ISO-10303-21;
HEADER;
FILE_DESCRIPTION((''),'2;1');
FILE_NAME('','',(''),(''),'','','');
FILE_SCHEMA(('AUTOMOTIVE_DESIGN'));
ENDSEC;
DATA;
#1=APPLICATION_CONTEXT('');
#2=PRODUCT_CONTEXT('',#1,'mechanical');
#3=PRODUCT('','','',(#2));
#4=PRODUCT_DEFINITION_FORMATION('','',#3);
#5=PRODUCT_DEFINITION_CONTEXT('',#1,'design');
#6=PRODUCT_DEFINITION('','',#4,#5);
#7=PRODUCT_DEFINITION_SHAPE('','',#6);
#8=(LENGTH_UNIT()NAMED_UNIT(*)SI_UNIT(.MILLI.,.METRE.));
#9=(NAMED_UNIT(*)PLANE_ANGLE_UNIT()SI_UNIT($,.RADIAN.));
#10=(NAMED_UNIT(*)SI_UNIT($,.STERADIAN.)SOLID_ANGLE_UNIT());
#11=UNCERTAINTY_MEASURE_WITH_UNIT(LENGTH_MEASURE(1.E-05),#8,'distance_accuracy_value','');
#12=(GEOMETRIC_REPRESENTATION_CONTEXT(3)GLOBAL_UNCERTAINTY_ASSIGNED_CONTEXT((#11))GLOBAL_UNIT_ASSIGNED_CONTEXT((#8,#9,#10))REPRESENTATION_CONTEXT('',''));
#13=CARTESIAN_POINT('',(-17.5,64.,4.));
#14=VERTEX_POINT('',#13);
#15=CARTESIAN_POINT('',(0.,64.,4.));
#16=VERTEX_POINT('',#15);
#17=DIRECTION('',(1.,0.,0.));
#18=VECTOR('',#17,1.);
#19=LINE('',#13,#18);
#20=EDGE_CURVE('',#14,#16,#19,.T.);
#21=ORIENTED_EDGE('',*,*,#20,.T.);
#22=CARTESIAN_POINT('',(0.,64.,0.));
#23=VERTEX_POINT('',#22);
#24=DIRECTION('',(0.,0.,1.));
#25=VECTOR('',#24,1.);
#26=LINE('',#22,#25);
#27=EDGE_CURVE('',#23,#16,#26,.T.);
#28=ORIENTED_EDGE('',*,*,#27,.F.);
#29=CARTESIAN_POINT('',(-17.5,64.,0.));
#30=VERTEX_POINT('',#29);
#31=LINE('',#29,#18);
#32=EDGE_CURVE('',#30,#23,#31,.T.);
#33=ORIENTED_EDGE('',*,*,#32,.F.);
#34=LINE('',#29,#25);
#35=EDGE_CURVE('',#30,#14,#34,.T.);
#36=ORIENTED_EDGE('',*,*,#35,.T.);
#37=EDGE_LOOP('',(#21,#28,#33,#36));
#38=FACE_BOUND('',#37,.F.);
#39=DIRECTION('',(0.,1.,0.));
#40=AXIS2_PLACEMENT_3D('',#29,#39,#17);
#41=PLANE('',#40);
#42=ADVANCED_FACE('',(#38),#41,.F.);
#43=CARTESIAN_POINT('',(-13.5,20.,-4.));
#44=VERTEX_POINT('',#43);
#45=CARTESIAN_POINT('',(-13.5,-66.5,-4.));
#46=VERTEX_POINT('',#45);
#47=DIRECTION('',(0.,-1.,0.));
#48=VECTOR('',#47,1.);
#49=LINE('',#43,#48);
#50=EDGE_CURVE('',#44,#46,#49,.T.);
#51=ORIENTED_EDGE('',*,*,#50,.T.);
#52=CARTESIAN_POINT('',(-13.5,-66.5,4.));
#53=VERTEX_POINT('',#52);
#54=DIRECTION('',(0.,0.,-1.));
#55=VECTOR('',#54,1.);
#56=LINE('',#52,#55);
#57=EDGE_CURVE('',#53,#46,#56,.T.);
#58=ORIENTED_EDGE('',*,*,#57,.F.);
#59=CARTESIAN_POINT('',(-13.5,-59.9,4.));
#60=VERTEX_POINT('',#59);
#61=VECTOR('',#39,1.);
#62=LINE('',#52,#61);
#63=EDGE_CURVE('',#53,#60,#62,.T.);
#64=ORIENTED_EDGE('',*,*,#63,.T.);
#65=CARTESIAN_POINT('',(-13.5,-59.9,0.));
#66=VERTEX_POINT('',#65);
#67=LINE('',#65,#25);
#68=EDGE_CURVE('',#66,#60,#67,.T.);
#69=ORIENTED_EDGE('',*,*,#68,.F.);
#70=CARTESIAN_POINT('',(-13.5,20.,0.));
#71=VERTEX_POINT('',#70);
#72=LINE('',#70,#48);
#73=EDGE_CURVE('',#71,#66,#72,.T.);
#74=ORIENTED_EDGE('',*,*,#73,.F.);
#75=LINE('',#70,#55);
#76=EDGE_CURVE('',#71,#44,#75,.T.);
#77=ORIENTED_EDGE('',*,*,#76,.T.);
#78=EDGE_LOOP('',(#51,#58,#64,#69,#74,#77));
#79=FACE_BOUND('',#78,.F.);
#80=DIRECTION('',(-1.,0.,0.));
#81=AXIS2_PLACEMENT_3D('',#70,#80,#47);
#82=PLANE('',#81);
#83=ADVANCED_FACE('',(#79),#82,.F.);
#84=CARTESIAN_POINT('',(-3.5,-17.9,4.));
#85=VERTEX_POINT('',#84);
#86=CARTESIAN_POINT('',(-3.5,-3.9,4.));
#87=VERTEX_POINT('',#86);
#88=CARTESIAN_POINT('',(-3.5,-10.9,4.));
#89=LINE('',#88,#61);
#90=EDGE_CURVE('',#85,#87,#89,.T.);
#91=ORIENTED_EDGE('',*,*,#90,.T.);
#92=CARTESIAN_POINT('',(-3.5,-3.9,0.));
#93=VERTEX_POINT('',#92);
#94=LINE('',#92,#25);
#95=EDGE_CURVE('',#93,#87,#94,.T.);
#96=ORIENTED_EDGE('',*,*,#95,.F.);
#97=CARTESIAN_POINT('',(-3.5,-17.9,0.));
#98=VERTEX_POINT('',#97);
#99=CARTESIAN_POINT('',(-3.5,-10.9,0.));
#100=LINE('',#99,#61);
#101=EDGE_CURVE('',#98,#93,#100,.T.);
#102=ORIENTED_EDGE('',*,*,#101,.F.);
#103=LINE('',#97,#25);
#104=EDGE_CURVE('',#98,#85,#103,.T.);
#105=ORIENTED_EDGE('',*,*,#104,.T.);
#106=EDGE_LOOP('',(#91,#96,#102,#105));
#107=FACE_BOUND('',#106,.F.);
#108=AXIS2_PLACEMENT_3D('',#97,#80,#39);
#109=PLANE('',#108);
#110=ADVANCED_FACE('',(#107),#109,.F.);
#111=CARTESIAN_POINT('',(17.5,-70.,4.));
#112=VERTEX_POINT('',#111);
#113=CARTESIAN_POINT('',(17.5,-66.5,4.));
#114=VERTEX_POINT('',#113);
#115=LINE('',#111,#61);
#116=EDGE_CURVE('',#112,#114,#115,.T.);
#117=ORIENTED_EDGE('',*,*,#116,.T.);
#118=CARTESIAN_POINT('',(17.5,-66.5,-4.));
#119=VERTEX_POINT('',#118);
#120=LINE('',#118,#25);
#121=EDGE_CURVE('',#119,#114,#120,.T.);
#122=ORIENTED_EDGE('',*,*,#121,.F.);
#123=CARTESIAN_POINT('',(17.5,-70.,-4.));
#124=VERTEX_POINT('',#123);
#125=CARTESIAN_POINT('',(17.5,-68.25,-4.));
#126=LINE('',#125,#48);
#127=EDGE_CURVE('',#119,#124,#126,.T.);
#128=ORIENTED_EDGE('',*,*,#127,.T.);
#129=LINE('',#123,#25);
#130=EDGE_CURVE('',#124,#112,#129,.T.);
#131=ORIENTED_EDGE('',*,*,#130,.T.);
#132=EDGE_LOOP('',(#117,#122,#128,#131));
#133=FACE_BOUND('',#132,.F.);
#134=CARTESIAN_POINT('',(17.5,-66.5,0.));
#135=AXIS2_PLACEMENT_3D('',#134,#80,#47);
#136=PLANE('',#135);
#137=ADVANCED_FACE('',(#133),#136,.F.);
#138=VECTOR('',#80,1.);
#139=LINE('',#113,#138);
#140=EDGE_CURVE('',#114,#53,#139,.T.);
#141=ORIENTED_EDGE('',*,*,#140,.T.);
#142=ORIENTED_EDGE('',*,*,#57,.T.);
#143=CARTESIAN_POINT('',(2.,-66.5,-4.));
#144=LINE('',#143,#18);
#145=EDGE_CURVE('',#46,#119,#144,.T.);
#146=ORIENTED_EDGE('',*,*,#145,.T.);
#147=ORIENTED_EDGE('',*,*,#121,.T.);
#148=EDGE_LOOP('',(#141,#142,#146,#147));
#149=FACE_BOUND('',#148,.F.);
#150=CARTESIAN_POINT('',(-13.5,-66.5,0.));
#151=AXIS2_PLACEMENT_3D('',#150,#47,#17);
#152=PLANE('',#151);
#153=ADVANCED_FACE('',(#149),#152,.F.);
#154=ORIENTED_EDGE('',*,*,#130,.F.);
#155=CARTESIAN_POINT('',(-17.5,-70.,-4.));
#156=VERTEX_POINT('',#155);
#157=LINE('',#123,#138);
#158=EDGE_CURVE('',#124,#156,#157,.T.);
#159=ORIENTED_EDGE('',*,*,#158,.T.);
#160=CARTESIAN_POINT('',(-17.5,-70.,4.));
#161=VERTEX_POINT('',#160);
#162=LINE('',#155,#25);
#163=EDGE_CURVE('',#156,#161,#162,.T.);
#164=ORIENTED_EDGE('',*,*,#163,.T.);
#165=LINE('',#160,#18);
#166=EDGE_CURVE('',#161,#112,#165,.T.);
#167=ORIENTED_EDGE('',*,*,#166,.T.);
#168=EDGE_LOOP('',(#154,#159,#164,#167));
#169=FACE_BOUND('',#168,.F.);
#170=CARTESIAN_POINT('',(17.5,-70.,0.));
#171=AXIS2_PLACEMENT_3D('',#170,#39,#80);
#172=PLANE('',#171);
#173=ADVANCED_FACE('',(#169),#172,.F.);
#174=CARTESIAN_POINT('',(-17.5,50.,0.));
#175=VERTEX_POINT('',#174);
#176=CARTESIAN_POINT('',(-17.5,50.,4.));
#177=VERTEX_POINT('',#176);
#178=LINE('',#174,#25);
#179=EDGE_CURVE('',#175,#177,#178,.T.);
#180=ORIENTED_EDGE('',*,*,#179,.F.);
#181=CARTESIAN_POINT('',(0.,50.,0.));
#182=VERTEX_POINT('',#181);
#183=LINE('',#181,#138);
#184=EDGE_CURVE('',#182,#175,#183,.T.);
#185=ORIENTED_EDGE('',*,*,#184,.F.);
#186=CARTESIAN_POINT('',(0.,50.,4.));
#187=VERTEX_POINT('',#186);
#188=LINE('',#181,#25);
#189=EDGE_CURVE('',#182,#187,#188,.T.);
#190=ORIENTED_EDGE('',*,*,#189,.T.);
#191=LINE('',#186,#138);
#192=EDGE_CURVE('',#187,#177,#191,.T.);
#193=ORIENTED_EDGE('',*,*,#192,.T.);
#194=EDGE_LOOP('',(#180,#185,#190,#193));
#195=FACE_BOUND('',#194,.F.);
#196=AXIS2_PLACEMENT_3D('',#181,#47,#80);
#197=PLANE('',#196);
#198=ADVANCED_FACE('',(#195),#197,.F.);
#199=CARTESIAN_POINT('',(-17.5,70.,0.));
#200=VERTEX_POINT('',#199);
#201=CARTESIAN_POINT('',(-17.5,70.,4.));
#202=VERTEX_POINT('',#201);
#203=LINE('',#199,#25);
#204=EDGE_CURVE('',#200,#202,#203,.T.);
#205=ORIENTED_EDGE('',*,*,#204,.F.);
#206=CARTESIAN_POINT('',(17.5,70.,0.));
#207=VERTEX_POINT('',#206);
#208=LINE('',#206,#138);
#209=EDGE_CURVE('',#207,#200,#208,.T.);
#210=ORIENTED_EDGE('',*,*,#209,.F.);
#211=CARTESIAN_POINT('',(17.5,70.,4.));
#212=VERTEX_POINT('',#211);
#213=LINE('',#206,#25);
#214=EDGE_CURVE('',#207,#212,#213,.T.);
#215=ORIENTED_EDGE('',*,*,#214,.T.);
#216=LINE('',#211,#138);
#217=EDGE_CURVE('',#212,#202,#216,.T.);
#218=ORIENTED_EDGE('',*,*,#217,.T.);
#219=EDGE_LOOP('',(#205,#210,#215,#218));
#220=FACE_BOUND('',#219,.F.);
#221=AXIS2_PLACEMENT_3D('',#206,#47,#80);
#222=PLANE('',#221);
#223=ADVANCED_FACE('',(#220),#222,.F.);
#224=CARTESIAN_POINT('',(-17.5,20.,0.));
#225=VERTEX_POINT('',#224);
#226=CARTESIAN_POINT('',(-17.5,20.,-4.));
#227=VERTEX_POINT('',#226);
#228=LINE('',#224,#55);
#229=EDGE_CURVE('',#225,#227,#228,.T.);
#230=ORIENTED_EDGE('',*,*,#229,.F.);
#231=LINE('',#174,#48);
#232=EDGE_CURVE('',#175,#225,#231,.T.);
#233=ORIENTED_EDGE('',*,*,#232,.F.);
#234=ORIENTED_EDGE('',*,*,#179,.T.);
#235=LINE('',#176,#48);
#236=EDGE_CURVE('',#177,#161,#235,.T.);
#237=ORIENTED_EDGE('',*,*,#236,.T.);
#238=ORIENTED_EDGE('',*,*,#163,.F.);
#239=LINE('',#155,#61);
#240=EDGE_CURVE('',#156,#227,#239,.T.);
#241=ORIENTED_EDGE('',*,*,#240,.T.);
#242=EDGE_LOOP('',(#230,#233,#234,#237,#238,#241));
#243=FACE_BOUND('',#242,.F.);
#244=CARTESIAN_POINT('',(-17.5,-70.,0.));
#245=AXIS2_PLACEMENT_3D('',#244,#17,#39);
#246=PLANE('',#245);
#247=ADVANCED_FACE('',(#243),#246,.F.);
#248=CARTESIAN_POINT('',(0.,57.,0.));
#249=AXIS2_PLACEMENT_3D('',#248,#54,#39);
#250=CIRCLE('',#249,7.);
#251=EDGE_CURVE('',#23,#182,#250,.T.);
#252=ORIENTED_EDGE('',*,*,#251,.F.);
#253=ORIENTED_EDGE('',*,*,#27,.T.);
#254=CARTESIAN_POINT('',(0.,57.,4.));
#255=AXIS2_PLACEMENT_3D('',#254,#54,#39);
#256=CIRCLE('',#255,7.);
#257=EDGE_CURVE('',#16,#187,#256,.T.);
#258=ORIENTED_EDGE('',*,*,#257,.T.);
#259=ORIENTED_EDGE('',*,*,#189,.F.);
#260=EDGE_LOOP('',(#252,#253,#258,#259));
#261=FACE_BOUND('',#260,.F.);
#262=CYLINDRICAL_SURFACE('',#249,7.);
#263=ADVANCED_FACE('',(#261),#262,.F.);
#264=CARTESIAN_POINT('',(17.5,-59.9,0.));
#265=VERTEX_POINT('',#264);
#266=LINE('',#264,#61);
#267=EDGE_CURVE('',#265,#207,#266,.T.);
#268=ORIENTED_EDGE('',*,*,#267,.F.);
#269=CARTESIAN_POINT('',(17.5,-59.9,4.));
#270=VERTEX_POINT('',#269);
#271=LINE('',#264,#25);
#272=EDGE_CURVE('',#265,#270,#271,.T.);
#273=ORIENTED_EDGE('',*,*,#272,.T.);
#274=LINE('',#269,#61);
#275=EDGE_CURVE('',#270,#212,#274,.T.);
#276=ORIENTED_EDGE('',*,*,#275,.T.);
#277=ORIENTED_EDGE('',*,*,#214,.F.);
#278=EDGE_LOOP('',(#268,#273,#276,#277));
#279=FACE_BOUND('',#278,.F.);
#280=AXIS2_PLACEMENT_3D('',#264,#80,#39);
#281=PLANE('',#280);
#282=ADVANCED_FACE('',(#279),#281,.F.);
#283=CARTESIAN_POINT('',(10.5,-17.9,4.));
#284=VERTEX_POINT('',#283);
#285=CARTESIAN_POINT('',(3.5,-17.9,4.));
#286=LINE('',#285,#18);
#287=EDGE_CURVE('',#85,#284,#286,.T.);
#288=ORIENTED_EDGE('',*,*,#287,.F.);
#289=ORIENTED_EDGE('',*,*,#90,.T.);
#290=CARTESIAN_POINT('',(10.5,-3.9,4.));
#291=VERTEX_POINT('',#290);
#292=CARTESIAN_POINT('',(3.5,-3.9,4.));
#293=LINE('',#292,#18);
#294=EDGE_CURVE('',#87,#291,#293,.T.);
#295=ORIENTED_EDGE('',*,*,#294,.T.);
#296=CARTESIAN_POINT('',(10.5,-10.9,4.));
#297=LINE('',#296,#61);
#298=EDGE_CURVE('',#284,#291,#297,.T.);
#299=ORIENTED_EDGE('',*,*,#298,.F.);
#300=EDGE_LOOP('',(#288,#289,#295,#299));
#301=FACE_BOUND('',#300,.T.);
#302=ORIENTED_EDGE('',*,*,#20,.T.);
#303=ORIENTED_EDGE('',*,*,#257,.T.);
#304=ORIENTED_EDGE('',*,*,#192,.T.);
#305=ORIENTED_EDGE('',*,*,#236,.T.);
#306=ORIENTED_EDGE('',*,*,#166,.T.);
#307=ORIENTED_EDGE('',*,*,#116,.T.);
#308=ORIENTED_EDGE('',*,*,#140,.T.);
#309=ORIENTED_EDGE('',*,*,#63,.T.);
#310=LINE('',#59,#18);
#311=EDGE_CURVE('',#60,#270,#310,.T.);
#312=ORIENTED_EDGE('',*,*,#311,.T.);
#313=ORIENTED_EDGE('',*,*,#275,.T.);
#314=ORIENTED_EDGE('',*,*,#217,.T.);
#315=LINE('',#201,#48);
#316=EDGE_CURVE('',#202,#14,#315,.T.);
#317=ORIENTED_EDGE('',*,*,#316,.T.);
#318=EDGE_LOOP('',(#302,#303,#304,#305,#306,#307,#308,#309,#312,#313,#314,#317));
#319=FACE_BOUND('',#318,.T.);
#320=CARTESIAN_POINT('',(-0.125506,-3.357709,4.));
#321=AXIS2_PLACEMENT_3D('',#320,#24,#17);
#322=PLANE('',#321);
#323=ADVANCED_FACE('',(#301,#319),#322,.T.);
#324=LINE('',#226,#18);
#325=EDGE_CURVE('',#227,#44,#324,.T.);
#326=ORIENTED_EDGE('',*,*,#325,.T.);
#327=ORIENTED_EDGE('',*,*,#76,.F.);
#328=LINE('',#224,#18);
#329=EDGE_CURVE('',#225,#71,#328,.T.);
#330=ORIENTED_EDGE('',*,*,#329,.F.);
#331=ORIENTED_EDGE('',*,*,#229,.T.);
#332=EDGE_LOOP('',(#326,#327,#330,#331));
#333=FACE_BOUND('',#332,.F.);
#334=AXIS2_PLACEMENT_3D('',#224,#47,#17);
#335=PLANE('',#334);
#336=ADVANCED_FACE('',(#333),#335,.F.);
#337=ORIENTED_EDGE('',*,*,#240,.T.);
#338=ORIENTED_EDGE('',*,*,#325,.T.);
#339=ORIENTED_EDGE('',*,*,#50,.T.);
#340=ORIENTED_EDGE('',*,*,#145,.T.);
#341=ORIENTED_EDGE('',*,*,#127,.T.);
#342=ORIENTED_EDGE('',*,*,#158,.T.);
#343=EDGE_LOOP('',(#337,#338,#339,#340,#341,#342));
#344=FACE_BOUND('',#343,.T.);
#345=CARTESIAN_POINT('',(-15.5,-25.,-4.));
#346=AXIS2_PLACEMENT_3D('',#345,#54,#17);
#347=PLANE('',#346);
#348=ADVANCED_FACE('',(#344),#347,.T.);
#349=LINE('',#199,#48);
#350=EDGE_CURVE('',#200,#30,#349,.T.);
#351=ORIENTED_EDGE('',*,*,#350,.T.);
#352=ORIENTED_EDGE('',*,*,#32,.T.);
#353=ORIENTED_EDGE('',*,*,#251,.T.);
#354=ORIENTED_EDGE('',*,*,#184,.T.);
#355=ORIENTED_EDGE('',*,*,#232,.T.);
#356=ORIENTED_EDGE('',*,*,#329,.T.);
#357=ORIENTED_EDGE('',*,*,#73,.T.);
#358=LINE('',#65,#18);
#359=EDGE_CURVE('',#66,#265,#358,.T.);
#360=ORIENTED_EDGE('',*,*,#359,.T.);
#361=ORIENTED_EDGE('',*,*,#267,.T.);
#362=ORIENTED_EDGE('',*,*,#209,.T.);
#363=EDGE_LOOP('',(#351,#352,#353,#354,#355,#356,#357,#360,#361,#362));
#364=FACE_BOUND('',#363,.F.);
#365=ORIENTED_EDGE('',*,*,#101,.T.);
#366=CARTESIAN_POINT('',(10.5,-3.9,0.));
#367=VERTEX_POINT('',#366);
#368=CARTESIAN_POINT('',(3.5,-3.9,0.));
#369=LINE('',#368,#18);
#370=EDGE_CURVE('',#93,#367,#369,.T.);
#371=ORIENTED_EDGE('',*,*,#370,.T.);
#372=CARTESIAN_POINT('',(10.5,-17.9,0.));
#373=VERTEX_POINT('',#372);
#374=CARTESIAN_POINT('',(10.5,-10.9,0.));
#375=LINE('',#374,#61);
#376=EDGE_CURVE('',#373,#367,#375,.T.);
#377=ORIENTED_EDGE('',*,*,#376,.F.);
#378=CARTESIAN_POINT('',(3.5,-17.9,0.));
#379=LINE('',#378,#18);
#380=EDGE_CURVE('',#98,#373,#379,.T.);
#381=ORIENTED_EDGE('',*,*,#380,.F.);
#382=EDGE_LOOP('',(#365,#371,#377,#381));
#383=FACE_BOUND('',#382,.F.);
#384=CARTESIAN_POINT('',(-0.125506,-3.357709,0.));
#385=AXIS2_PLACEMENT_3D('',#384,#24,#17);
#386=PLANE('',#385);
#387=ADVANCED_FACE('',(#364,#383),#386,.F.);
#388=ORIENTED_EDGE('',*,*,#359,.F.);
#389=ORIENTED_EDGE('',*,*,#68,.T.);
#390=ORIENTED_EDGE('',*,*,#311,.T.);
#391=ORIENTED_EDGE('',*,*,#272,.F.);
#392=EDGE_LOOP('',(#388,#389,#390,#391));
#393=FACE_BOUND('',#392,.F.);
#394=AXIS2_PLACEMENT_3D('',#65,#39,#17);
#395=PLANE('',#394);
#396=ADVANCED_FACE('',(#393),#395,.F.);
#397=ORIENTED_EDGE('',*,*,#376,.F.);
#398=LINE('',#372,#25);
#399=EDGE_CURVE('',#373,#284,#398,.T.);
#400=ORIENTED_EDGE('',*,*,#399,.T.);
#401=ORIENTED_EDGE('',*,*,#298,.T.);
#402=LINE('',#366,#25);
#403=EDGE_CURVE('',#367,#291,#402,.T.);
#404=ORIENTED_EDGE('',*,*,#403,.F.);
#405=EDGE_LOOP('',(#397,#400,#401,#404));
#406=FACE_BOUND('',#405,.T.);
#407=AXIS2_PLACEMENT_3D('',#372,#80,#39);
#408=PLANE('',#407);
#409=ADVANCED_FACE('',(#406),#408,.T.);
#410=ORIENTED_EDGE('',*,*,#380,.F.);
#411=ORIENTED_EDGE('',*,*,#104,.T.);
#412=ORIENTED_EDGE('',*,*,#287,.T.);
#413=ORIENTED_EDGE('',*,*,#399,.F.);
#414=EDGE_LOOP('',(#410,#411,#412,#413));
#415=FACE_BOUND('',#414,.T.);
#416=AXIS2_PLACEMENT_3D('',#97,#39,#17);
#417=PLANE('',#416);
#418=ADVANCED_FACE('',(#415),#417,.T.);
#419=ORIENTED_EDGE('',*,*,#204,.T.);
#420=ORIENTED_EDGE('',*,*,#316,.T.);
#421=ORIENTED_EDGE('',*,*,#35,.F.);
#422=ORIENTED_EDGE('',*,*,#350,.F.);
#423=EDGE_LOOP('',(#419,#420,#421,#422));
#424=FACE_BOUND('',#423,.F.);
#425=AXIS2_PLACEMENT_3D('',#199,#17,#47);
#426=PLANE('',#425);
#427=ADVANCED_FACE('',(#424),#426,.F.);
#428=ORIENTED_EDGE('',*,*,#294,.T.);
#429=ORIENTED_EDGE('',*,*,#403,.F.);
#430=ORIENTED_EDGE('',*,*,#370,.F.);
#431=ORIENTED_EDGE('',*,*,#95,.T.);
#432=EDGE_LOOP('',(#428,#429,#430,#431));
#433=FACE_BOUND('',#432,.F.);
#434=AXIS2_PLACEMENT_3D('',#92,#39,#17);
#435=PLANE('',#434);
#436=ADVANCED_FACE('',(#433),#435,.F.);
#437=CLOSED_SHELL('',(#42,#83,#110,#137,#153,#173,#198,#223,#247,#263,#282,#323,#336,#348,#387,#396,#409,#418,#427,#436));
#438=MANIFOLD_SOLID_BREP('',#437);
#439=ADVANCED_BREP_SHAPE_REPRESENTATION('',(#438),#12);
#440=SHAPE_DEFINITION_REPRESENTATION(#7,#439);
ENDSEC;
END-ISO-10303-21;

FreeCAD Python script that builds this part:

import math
import FreeCAD as App
import Part
import Sketcher

V = App.Vector

doc = App.newDocument("Part")
body = doc.addObject("PartDesign::Body", "Body")

# Sketch on XY plane
sketch1 = body.newObject("Sketcher::SketchObject", "Sketch")
sketch1.AttachmentSupport = (doc.getObject("XY_Plane"), [""])
sketch1.MapMode = "FlatFace"
sketch1.addGeometry([
    Part.LineSegment(V(17.5, -59.9, 0), V(17.5, 70, 0)),  # 0
    Part.LineSegment(V(17.5, 70, 0), V(-17.5, 70, 0)),  # 1
    Part.LineSegment(V(-17.5, 70, 0), V(-17.5, 64, 0)),  # 2
    Part.LineSegment(V(-17.5, 64, 0), V(0, 64, 0)),  # 3
    Part.ArcOfCircle(Part.Circle(V(0, 57, 0), V(0, 0, 1), 7), math.radians(-90), math.radians(90)),  # 4
    Part.LineSegment(V(0, 50, 0), V(-17.5, 50, 0)),  # 5
    Part.LineSegment(V(-17.5, 50, 0), V(-17.5, -70, 0)),  # 6
    Part.LineSegment(V(-17.5, -70, 0), V(17.5, -70, 0)),  # 7
    Part.LineSegment(V(17.5, -70, 0), V(17.5, -66.5, 0)),  # 8
    Part.LineSegment(V(17.5, -66.5, 0), V(-13.5, -66.5, 0)),  # 9
    Part.LineSegment(V(-13.5, -66.5, 0), V(-13.5, -59.9, 0)),  # 10
    Part.LineSegment(V(-13.5, -59.9, 0), V(17.5, -59.9, 0)),  # 11
    Part.LineSegment(V(10.5, -17.9, 0), V(-3.5, -17.9, 0)),  # 12
    Part.LineSegment(V(-3.5, -17.9, 0), V(-3.5, -3.9, 0)),  # 13
    Part.LineSegment(V(-3.5, -3.9, 0), V(10.5, -3.9, 0)),  # 14
    Part.LineSegment(V(10.5, -3.9, 0), V(10.5, -17.9, 0)),  # 15
], False)
sketch1.addConstraint([
    Sketcher.Constraint("Coincident", 0, 2, 1, 1),
    Sketcher.Constraint("Coincident", 1, 2, 2, 1),
    Sketcher.Constraint("Coincident", 2, 2, 3, 1),
    Sketcher.Constraint("Tangent", 3, 2, 4, 2),
    Sketcher.Constraint("Tangent", 4, 1, 5, 1),
    Sketcher.Constraint("Coincident", 5, 2, 6, 1),
    Sketcher.Constraint("Coincident", 6, 2, 7, 1),
    Sketcher.Constraint("Coincident", 7, 2, 8, 1),
    Sketcher.Constraint("Coincident", 8, 2, 9, 1),
    Sketcher.Constraint("Coincident", 9, 2, 10, 1),
    Sketcher.Constraint("Coincident", 10, 2, 11, 1),
    Sketcher.Constraint("Coincident", 11, 2, 0, 1),
    Sketcher.Constraint("Coincident", 12, 2, 13, 1),
    Sketcher.Constraint("Coincident", 13, 2, 14, 1),
    Sketcher.Constraint("Coincident", 14, 2, 15, 1),
    Sketcher.Constraint("Coincident", 15, 2, 12, 1),
    Sketcher.Constraint("Vertical", 0),
    Sketcher.Constraint("Horizontal", 1),
    Sketcher.Constraint("Vertical", 2),
    Sketcher.Constraint("Horizontal", 3),
    Sketcher.Constraint("Horizontal", 5),
    Sketcher.Constraint("Vertical", 6),
    Sketcher.Constraint("Horizontal", 7),
    Sketcher.Constraint("Vertical", 8),
    Sketcher.Constraint("Horizontal", 9),
    Sketcher.Constraint("Vertical", 10),
    Sketcher.Constraint("Horizontal", 11),
    Sketcher.Constraint("Horizontal", 12),
    Sketcher.Constraint("Vertical", 13),
    Sketcher.Constraint("Horizontal", 14),
    Sketcher.Constraint("Vertical", 15),
    Sketcher.Constraint("Symmetric", 0, 2, 6, 2, -1, 1),
    Sketcher.Constraint("PointOnObject", 4, 3, -2),
    Sketcher.Constraint("Vertical", 2, 2, 5, 2),
    Sketcher.Constraint("Vertical", 0, 2, 7, 2),
    Sketcher.Constraint("Equal", 14, 13),
    Sketcher.Constraint("Radius", 4, 7.0),
    Sketcher.Constraint("DistanceX", 1, 2, 1, 1, 35.0),
    Sketcher.Constraint("DistanceX", 9, 2, 9, 1, 31.0),
    Sketcher.Constraint("DistanceX", 12, 2, 12, 1, 14.0),
    Sketcher.Constraint("DistanceY", 2, 2, 2, 1, 6.0),
    Sketcher.Constraint("DistanceY", 6, 2, 6, 1, 120.0),
    Sketcher.Constraint("DistanceY", 0, 1, 0, 2, 129.9),
    Sketcher.Constraint("DistanceY", 8, 1, 8, 2, 3.5),
    Sketcher.Constraint("DistanceX", 10, 2, 12, 2, 10.0),
    Sketcher.Constraint("DistanceY", 10, 2, 12, 2, 42.0),
])
pad1 = body.newObject("PartDesign::Pad", "Pad")
pad1.Profile = sketch1
pad1.Length = 4

# Sketch on XY plane
sketch2 = body.newObject("Sketcher::SketchObject", "Sketch001")
sketch2.AttachmentSupport = (doc.getObject("XY_Plane"), [""])
sketch2.MapMode = "FlatFace"
sketch2.addGeometry([
    Part.LineSegment(V(-17.5, -70, 0), V(-17.5, 20, 0)),  # 0
    Part.LineSegment(V(-17.5, 20, 0), V(-13.5, 20, 0)),  # 1
    Part.LineSegment(V(-13.5, 20, 0), V(-13.5, -66.5, 0)),  # 2
    Part.LineSegment(V(-13.5, -66.5, 0), V(17.5, -66.5, 0)),  # 3
    Part.LineSegment(V(17.5, -66.5, 0), V(17.5, -70, 0)),  # 4
    Part.LineSegment(V(17.5, -70, 0), V(-17.5, -70, 0)),  # 5
], False)
sketch2.addConstraint([
    Sketcher.Constraint("Coincident", 0, 2, 1, 1),
    Sketcher.Constraint("Coincident", 1, 2, 2, 1),
    Sketcher.Constraint("Coincident", 2, 2, 3, 1),
    Sketcher.Constraint("Coincident", 3, 2, 4, 1),
    Sketcher.Constraint("Coincident", 4, 2, 5, 1),
    Sketcher.Constraint("Coincident", 5, 2, 0, 1),
    Sketcher.Constraint("Vertical", 0),
    Sketcher.Constraint("Horizontal", 1),
    Sketcher.Constraint("Vertical", 2),
    Sketcher.Constraint("Horizontal", 3),
    Sketcher.Constraint("Vertical", 4),
    Sketcher.Constraint("Horizontal", 5),
    Sketcher.Constraint("DistanceX", 1, 1, 1, 2, 4.0),
    Sketcher.Constraint("DistanceX", 3, 1, 3, 2, 31.0),
    Sketcher.Constraint("DistanceY", 0, 1, 0, 2, 90.0),
    Sketcher.Constraint("DistanceY", 2, 2, 2, 1, 86.5),
    Sketcher.Constraint("DistanceY", -1, 1, 0, 2, 20.0),
    Sketcher.Constraint("DistanceX", 0, 2, -1, 1, 17.5),
])
pad2 = body.newObject("PartDesign::Pad", "Pad001")
pad2.Profile = sketch2
pad2.Length = 4
pad2.Reversed = True

doc.recompute()
